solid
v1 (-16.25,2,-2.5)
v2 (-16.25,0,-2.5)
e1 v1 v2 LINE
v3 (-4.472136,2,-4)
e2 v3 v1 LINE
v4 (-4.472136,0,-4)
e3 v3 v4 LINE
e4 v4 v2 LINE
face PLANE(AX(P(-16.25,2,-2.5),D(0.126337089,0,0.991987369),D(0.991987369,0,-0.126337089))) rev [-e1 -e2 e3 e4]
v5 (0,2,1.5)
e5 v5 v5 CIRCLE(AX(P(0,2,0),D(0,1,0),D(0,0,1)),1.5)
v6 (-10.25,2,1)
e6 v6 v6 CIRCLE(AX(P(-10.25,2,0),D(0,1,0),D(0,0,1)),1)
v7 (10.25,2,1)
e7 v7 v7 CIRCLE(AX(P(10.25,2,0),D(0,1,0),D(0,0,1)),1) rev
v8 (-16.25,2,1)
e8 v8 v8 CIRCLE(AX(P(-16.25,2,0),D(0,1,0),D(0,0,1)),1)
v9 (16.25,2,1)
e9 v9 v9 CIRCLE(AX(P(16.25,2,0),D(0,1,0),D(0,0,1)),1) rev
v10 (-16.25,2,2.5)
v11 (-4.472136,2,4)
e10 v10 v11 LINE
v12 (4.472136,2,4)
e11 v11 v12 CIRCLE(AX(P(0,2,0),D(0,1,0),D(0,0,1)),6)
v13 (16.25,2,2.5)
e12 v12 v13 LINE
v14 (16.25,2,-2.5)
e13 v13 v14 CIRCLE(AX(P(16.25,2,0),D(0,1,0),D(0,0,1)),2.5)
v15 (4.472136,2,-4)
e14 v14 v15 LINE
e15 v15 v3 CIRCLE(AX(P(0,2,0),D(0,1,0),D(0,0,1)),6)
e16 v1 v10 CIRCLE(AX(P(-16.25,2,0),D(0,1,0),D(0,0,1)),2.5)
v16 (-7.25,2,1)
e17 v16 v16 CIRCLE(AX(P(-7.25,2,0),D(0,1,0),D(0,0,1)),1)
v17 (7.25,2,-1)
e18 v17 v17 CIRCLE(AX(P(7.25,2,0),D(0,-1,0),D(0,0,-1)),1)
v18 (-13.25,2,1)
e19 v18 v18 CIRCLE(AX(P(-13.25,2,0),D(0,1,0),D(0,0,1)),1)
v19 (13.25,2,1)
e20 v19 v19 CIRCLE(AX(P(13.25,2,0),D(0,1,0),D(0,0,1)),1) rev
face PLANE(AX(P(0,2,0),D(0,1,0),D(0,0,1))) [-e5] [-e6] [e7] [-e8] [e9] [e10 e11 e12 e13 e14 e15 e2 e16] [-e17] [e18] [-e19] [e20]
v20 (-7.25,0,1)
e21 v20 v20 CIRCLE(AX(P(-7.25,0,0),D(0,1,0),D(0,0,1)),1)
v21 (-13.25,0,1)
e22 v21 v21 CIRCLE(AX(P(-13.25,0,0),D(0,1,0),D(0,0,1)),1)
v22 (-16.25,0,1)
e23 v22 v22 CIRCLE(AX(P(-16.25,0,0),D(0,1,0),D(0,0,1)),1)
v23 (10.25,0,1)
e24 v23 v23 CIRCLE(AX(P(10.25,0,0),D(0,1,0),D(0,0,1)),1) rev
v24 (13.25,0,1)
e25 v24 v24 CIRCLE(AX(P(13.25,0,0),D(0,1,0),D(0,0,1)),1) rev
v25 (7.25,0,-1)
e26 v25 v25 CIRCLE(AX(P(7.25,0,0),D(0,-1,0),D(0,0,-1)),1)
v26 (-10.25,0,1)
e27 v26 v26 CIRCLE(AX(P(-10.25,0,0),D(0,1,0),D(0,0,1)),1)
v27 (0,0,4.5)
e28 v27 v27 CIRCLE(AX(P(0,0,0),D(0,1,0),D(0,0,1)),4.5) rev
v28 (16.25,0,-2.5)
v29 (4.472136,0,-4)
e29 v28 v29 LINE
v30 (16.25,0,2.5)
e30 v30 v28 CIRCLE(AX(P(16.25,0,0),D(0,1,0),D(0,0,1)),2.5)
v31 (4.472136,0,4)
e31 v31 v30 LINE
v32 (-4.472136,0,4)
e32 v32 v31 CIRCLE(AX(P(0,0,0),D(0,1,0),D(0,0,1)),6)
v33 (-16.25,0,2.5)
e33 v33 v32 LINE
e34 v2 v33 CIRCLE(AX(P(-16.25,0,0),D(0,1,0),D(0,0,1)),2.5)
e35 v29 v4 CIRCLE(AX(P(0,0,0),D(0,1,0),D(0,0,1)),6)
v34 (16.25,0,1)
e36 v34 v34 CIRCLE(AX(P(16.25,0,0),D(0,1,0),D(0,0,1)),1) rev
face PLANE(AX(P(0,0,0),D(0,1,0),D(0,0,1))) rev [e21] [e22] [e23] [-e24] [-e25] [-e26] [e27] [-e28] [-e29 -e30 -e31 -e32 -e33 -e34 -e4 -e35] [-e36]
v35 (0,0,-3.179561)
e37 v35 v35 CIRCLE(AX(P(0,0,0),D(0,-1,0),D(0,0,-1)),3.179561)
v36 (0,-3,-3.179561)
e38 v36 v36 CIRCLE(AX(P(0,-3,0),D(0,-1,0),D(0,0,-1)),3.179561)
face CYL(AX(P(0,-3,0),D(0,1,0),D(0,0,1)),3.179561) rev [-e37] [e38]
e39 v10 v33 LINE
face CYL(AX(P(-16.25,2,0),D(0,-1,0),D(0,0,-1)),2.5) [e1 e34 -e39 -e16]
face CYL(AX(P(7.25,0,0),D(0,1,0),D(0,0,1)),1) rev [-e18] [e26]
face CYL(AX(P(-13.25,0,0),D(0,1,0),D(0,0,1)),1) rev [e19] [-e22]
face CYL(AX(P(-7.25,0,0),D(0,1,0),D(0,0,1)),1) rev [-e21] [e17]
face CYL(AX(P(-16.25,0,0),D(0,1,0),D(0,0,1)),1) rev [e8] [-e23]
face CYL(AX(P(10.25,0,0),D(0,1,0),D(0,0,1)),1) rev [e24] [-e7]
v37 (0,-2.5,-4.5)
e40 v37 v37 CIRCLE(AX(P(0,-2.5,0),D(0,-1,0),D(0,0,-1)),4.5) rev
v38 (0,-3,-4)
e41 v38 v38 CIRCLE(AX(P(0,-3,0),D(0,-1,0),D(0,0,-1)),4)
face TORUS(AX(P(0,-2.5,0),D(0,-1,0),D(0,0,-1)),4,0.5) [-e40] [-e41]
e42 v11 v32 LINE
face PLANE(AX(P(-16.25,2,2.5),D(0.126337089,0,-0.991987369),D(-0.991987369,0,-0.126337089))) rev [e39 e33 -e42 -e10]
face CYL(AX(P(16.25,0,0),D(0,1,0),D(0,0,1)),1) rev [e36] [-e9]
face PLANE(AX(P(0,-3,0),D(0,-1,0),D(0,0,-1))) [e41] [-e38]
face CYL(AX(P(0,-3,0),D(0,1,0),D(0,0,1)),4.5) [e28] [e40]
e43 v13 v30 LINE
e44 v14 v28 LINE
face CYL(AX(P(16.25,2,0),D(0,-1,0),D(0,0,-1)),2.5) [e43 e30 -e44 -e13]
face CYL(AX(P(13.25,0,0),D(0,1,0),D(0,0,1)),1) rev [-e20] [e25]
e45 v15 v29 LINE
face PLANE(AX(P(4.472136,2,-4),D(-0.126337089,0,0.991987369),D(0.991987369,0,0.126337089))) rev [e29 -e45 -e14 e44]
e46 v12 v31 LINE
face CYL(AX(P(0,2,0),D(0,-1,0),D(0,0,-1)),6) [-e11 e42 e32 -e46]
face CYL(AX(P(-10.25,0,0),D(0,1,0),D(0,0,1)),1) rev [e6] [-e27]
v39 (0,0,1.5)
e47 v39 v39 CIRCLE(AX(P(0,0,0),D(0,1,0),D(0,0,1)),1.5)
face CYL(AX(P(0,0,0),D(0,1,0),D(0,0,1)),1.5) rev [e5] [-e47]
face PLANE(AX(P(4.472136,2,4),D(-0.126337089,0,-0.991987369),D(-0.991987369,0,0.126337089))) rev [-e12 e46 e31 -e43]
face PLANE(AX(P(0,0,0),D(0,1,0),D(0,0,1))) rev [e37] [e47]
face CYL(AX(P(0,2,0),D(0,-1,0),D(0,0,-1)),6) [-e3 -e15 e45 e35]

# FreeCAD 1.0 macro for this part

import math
import FreeCAD as App
import Part
import Sketcher
Q = App.Units.Quantity


def edges_at(feature, points):
    """Names of the edges that pass closest to the given points."""
    edges = feature.Shape.Edges
    near = lambda p: min(range(len(edges)), key=lambda i: edges[i].distToShape(Part.Vertex(*p))[0])
    return sorted({f"Edge{near(p) + 1}" for p in points})

doc = App.newDocument("Part")
body = doc.addObject("PartDesign::Body", "Body")

# Sketch on XZ plane
sketch1 = body.newObject("Sketcher::SketchObject", "Sketch")
sketch1.AttachmentSupport = (doc.getObject("XZ_Plane"), [""])
sketch1.MapMode = "FlatFace"
sketch1.addGeometry([
    Part.LineSegment(App.Vector(16.2, -2.5, 0), App.Vector(4.5, -4, 0)),  # 0
    Part.ArcOfCircle(Part.Circle(App.Vector(0, 0, 0), App.Vector(0, 0, 1), 6), math.radians(-138), math.radians(-42)),  # 1
    Part.LineSegment(App.Vector(-4.5, -4, 0), App.Vector(-16.2, -2.5, 0)),  # 2
    Part.ArcOfCircle(Part.Circle(App.Vector(-16.2, 0, 0), App.Vector(0, 0, 1), 2.5), math.radians(90), math.radians(270)),  # 3
    Part.LineSegment(App.Vector(-16.2, 2.5, 0), App.Vector(-4.5, 4, 0)),  # 4
    Part.ArcOfCircle(Part.Circle(App.Vector(0, 0, 0), App.Vector(0, 0, 1), 6), math.radians(42), math.radians(138)),  # 5
    Part.LineSegment(App.Vector(4.5, 4, 0), App.Vector(16.2, 2.5, 0)),  # 6
    Part.ArcOfCircle(Part.Circle(App.Vector(16.2, 0, 0), App.Vector(0, 0, 1), 2.5), math.radians(-90), math.radians(90)),  # 7
], False)
sketch1.addConstraint([
    Sketcher.Constraint("Coincident", 0, 2, 1, 2),
    Sketcher.Constraint("Coincident", 1, 1, 2, 1),
    Sketcher.Constraint("Coincident", 2, 2, 3, 2),
    Sketcher.Constraint("Coincident", 3, 1, 4, 1),
    Sketcher.Constraint("Coincident", 4, 2, 5, 2),
    Sketcher.Constraint("Coincident", 5, 1, 6, 1),
    Sketcher.Constraint("Coincident", 6, 2, 7, 2),
    Sketcher.Constraint("Coincident", 7, 1, 0, 1),
    Sketcher.Constraint("Coincident", 1, 3, -1, 1),
    Sketcher.Constraint("Coincident", 5, 3, -1, 1),
    Sketcher.Constraint("Equal", 1, 5),
    Sketcher.Constraint("Equal", 3, 7),
    Sketcher.Constraint("Symmetric", 3, 3, 7, 3, -1, 1),
    Sketcher.Constraint("Symmetric", 3, 1, 6, 2, -2),
    Sketcher.Constraint("Parallel", 0, 4),
    Sketcher.Constraint("Parallel", 2, 6),
    Sketcher.Constraint("Horizontal", 0, 2, 1, 1),
    Sketcher.Constraint("Horizontal", 4, 2, 5, 1),
    Sketcher.Constraint("Vertical", 3, 3, 2, 2),
    Sketcher.Constraint("Vertical", 2, 2, 3, 1),
    Sketcher.Constraint("Radius", 1, Q("6 mm")),
    Sketcher.Constraint("Radius", 3, Q("2.5 mm")),
    Sketcher.Constraint("DistanceY", 0, 2, -1, 1, Q("4 mm")),
    Sketcher.Constraint("DistanceX", 3, 3, 7, 3, Q("32.5 mm")),
])
pad1 = body.newObject("PartDesign::Pad", "Pad")
pad1.Profile = sketch1
pad1.Length = 2
pad1.Reversed = True

# Sketch on XZ plane
sketch2 = body.newObject("Sketcher::SketchObject", "Sketch001")
sketch2.AttachmentSupport = (doc.getObject("XZ_Plane"), [""])
sketch2.MapMode = "FlatFace"
sketch2.AttachmentOffset = App.Placement(App.Vector(0, 0, -2), App.Rotation())
sketch2.addGeometry([
    Part.Circle(App.Vector(-10.2, 0, 0), App.Vector(0, 0, 1), 1),  # 0
    Part.Circle(App.Vector(-7.2, 0, 0), App.Vector(0, 0, 1), 1),  # 1
    Part.Circle(App.Vector(0, 0, 0), App.Vector(0, 0, 1), 1.5),  # 2
    Part.Circle(App.Vector(13.2, 0, 0), App.Vector(0, 0, 1), 1),  # 3
    Part.Circle(App.Vector(16.2, 0, 0), App.Vector(0, 0, 1), 1),  # 4
    Part.Circle(App.Vector(10.2, 0, 0), App.Vector(0, 0, 1), 1),  # 5
    Part.Circle(App.Vector(-16.2, 0, 0), App.Vector(0, 0, 1), 1),  # 6
    Part.Circle(App.Vector(-13.2, 0, 0), App.Vector(0, 0, 1), 1),  # 7
    Part.Circle(App.Vector(7.2, 0, 0), App.Vector(0, 0, 1), 1),  # 8
], False)
sketch2.addConstraint([
    Sketcher.Constraint("Coincident", 2, 3, -1, 1),
    Sketcher.Constraint("Equal", 0, 1),
    Sketcher.Constraint("Equal", 1, 3),
    Sketcher.Constraint("Equal", 3, 4),
    Sketcher.Constraint("Equal", 4, 5),
    Sketcher.Constraint("Equal", 5, 6),
    Sketcher.Constraint("Equal", 6, 7),
    Sketcher.Constraint("Equal", 7, 8),
    Sketcher.Constraint("Symmetric", 0, 3, 5, 3, -1, 1),
    Sketcher.Constraint("Symmetric", 4, 3, 6, 3, -1, 1),
    Sketcher.Constraint("Symmetric", 3, 3, 7, 3, -1, 1),
    Sketcher.Constraint("Symmetric", 1, 3, 8, 3, -1, 1),
    Sketcher.Constraint("PointOnObject", 0, 3, -1),
    Sketcher.Constraint("PointOnObject", 1, 3, -1),
    Sketcher.Constraint("PointOnObject", 3, 3, -1),
    Sketcher.Constraint("PointOnObject", 4, 3, -1),
    Sketcher.Constraint("Diameter", 0, Q("2 mm")),
    Sketcher.Constraint("Diameter", 2, Q("3 mm")),
    Sketcher.Constraint("DistanceX", 0, 3, 1, 3, Q("3 mm")),
    Sketcher.Constraint("DistanceX", 3, 3, 4, 3, Q("3 mm")),
    Sketcher.Constraint("DistanceX", 5, 3, 3, 3, Q("3 mm")),
    Sketcher.Constraint("DistanceX", 1, 3, 3, 3, Q("20.5 mm")),
])
pocket1 = body.newObject("PartDesign::Pocket", "Pocket")
pocket1.Profile = sketch2
pocket1.Type = "ThroughAll"
pocket1.Reversed = True

# Sketch on XZ plane
sketch3 = body.newObject("Sketcher::SketchObject", "Sketch002")
sketch3.AttachmentSupport = (doc.getObject("XZ_Plane"), [""])
sketch3.MapMode = "FlatFace"
sketch3.addGeometry([
    Part.Circle(App.Vector(0, 0, 0), App.Vector(0, 0, 1), 4.5),
    Part.Circle(App.Vector(0, 0, 0), App.Vector(0, 0, 1), 3.2),
], False)
sketch3.addConstraint([
    Sketcher.Constraint("Coincident", 0, 3, -1, 1),
    Sketcher.Constraint("Coincident", 1, 3, -1, 1),
    Sketcher.Constraint("Diameter", 0, Q("9 mm")),
    Sketcher.Constraint("Diameter", 1, Q("6.359122 mm")),
])
pad2 = body.newObject("PartDesign::Pad", "Pad001")
pad2.Profile = sketch3
pad2.Length = 3
doc.recompute()

fillet = body.newObject("PartDesign::Fillet", "Fillet")
fillet.Base = (pad2, edges_at(pad2, [(0, -3, -4.5)]))
fillet.Radius = 0.5

doc.recompute()
